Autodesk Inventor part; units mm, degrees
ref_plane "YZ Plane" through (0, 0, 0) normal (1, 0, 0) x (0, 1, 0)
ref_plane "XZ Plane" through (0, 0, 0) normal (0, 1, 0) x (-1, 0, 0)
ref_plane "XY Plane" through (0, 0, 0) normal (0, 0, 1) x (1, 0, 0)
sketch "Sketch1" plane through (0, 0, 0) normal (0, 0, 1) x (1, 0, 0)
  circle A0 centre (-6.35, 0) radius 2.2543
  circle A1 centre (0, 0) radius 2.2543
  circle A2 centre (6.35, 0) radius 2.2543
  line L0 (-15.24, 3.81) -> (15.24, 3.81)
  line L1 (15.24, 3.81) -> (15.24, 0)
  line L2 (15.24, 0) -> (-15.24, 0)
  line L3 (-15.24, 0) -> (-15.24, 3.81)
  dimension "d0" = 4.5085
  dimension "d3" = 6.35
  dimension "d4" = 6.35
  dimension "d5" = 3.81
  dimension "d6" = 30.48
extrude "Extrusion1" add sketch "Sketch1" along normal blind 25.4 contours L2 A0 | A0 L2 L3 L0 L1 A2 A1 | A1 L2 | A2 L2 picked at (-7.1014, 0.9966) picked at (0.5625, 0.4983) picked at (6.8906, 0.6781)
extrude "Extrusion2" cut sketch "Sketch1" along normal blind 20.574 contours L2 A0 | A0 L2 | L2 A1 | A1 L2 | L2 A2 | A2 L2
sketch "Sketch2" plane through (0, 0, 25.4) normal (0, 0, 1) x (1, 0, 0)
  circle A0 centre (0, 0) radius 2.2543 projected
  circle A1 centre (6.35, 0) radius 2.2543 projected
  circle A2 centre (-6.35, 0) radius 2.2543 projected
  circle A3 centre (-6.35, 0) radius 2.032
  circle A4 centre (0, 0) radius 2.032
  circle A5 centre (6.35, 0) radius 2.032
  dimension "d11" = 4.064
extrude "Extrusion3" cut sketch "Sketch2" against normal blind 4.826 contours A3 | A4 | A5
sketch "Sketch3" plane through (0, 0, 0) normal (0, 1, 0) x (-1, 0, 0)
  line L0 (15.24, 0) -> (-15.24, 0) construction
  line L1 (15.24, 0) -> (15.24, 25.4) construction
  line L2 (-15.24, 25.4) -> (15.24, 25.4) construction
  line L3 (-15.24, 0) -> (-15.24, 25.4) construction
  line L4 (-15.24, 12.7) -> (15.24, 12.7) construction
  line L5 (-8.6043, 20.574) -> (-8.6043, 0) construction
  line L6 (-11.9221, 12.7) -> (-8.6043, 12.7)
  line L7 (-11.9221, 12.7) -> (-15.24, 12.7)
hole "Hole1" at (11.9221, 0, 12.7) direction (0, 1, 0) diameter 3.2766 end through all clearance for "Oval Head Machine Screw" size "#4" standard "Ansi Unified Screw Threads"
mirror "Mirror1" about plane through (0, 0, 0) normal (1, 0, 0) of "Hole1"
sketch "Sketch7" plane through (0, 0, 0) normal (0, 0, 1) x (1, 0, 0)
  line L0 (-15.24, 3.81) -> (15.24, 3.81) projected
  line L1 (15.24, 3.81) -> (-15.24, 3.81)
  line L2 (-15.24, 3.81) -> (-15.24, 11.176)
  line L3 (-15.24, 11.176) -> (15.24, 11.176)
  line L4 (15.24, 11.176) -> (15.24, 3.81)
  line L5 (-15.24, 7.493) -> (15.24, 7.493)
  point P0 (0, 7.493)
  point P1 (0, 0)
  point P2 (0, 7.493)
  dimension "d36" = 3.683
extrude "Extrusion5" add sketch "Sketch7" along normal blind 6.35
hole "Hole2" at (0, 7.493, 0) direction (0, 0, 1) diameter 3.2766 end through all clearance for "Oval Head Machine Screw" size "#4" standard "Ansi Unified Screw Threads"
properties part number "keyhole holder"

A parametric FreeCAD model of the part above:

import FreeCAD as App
import Part
import Sketcher
Q = App.Units.Quantity


def add_polygon(sketch, points):
    """Adds a closed chain of lines whose ends are joined by coincident constraints."""
    first, n = sketch.GeometryCount, len(points)
    for a, b in zip(points, points[1:] + points[:1]):
        sketch.addGeometry(Part.LineSegment(App.Vector(*a, 0), App.Vector(*b, 0)), False)
    for i in range(n):
        sketch.addConstraint(Sketcher.Constraint("Coincident", first + i, 2, first + (i + 1) % n, 1))

doc = App.newDocument("Part")
body = doc.addObject("PartDesign::Body", "Body")

sketch1 = body.newObject("Sketcher::SketchObject", "Sketch")
sketch1.AttachmentSupport = (doc.getObject("XY_Plane"), [""])
sketch1.MapMode = "FlatFace"
add_polygon(sketch1, [(15.2, 0), (15.2, 3.8), (-15.2, 3.8), (-15.2, 0)])
sketch1.addConstraint(Sketcher.Constraint("Vertical", 0))
sketch1.addConstraint(Sketcher.Constraint("Horizontal", 1))
sketch1.addConstraint(Sketcher.Constraint("Vertical", 2))
sketch1.addConstraint(Sketcher.Constraint("Horizontal", 3))
sketch1.addConstraint(Sketcher.Constraint("Symmetric", 2, 2, 3, 2, -1, 1))
sketch1.addConstraint(Sketcher.Constraint("DistanceX", 1, 2, 1, 1, Q("1.2 in")))
sketch1.addConstraint(Sketcher.Constraint("DistanceY", 0, 1, 0, 2, Q("0.15 in")))
pad1 = body.newObject("PartDesign::Pad", "Pad")
pad1.Profile = sketch1
pad1.Length = Q("1 in")

sketch2 = body.newObject("Sketcher::SketchObject", "Sketch001")
sketch2.AttachmentSupport = (doc.getObject("XY_Plane"), [""])
sketch2.MapMode = "FlatFace"
sketch2.addGeometry(Part.Circle(App.Vector(-6.3, 0, 0), App.Vector(0, 0, 1), 2.3), False)
sketch2.addGeometry(Part.Circle(App.Vector(0, 0, 0), App.Vector(0, 0, 1), 2.3), False)
sketch2.addGeometry(Part.Circle(App.Vector(6.3, 0, 0), App.Vector(0, 0, 1), 2.3), False)
sketch2.addConstraint(Sketcher.Constraint("Coincident", 1, 3, -1, 1))
sketch2.addConstraint(Sketcher.Constraint("Equal", 0, 1))
sketch2.addConstraint(Sketcher.Constraint("Equal", 1, 2))
sketch2.addConstraint(Sketcher.Constraint("Symmetric", 0, 3, 2, 3, -1, 1))
sketch2.addConstraint(Sketcher.Constraint("PointOnObject", 0, 3, -1))
sketch2.addConstraint(Sketcher.Constraint("Diameter", 0, Q("0.1775 in")))
sketch2.addConstraint(Sketcher.Constraint("DistanceX", 0, 3, -1, 1, Q("0.25 in")))
pocket1 = body.newObject("PartDesign::Pocket", "Pocket")
pocket1.Profile = sketch2
pocket1.Length = Q("0.81 in")
pocket1.Reversed = True

sketch3 = body.newObject("Sketcher::SketchObject", "Sketch002")
sketch3.AttachmentSupport = (doc.getObject("XY_Plane"), [""])
sketch3.MapMode = "FlatFace"
sketch3.AttachmentOffset = App.Placement(App.Vector(0, 0, 1 * 25.4), App.Rotation())
sketch3.addGeometry(Part.Circle(App.Vector(-6.3, 0, 0), App.Vector(0, 0, 1), 2), False)
sketch3.addGeometry(Part.Circle(App.Vector(0, 0, 0), App.Vector(0, 0, 1), 2), False)
sketch3.addGeometry(Part.Circle(App.Vector(6.3, 0, 0), App.Vector(0, 0, 1), 2), False)
sketch3.addConstraint(Sketcher.Constraint("Coincident", 1, 3, -1, 1))
sketch3.addConstraint(Sketcher.Constraint("Equal", 0, 1))
sketch3.addConstraint(Sketcher.Constraint("Equal", 1, 2))
sketch3.addConstraint(Sketcher.Constraint("Symmetric", 0, 3, 2, 3, -1, 1))
sketch3.addConstraint(Sketcher.Constraint("PointOnObject", 0, 3, -1))
sketch3.addConstraint(Sketcher.Constraint("Diameter", 0, Q("0.16 in")))
sketch3.addConstraint(Sketcher.Constraint("DistanceX", 0, 3, 2, 3, Q("0.5 in")))
pocket2 = body.newObject("PartDesign::Pocket", "Pocket001")
pocket2.Profile = sketch3
pocket2.Length = Q("0.19 in")

sketch4 = body.newObject("Sketcher::SketchObject", "Sketch003")
sketch4.AttachmentSupport = (doc.getObject("XZ_Plane"), [""])
sketch4.MapMode = "FlatFace"
sketch4.addGeometry(Part.Circle(App.Vector(11.9, 12.7, 0), App.Vector(0, 0, 1), 1.6), False)
sketch4.addConstraint(Sketcher.Constraint("Diameter", 0, Q("0.129 in")))
sketch4.addConstraint(Sketcher.Constraint("DistanceY", -1, 1, 0, 3, Q("0.5 in")))
sketch4.addConstraint(Sketcher.Constraint("DistanceX", -1, 1, 0, 3, Q("11.922 mm")))
doc.recompute()
hole = body.newObject("PartDesign::Hole", "Hole")
hole.Profile = sketch4
hole.ThreadType = "None"
hole.Diameter = Q("0.129 in")
hole.DepthType = "ThroughAll"
doc.recompute()

mirrored = body.newObject("PartDesign::Mirrored", "Mirrored")
mirrored.Originals = [hole]
mirrored.MirrorPlane = (doc.getObject("YZ_Plane"), [""])
body.Tip = mirrored

sketch5 = body.newObject("Sketcher::SketchObject", "Sketch004")
sketch5.AttachmentSupport = (doc.getObject("XY_Plane"), [""])
sketch5.MapMode = "FlatFace"
add_polygon(sketch5, [(-15, 4), (15, 4), (15, 11), (-15, 11)])
sketch5.addConstraint(Sketcher.Constraint("Horizontal", 0))
sketch5.addConstraint(Sketcher.Constraint("Vertical", 1))
sketch5.addConstraint(Sketcher.Constraint("Horizontal", 2))
sketch5.addConstraint(Sketcher.Constraint("Vertical", 3))
sketch5.addConstraint(Sketcher.Constraint("DistanceX", 0, 1, 0, 2, Q("1.2 in")))
sketch5.addConstraint(Sketcher.Constraint("DistanceY", 1, 1, 1, 2, Q("0.29 in")))
sketch5.addConstraint(Sketcher.Constraint("DistanceX", -1, 1, 0, 2, Q("0.6 in")))
sketch5.addConstraint(Sketcher.Constraint("DistanceY", -1, 1, 0, 2, Q("0.15 in")))
pad2 = body.newObject("PartDesign::Pad", "Pad001")
pad2.Profile = sketch5
pad2.Length = Q("0.25 in")

sketch6 = body.newObject("Sketcher::SketchObject", "Sketch005")
sketch6.AttachmentSupport = (doc.getObject("XY_Plane"), [""])
sketch6.MapMode = "FlatFace"
sketch6.addGeometry(Part.Circle(App.Vector(0, 7.5, 0), App.Vector(0, 0, 1), 1.6), False)
sketch6.addConstraint(Sketcher.Constraint("PointOnObject", 0, 3, -2))
sketch6.addConstraint(Sketcher.Constraint("Diameter", 0, Q("0.129 in")))
sketch6.addConstraint(Sketcher.Constraint("DistanceY", -1, 1, 0, 3, Q("0.295 in")))
doc.recompute()
hole2 = body.newObject("PartDesign::Hole", "Hole001")
hole2.Profile = sketch6
hole2.ThreadType = "None"
hole2.Diameter = Q("0.129 in")
hole2.DepthType = "ThroughAll"
hole2.Reversed = True

doc.recompute()
